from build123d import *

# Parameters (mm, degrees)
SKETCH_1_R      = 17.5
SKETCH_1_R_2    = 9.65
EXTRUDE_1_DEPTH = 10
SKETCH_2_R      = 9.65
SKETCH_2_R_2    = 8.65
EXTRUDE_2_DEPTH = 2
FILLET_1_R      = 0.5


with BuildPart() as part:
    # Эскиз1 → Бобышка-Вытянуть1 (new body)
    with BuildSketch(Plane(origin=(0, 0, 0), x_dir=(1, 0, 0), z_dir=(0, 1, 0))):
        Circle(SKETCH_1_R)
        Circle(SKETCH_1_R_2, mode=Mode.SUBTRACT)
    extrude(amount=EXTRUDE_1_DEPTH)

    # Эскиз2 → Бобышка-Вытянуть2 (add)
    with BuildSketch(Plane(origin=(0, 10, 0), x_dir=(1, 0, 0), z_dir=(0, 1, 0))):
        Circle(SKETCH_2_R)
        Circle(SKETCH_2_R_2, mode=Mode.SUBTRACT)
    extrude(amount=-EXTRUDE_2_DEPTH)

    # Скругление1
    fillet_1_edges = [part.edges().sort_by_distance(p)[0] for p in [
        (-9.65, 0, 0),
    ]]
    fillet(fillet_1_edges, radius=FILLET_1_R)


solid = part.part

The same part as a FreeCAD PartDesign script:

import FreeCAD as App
import Part
import Sketcher
Q = App.Units.Quantity


def edges_at(feature, points):
    """Names of the edges that pass closest to the given points."""
    edges = feature.Shape.Edges
    near = lambda p: min(range(len(edges)), key=lambda i: edges[i].distToShape(Part.Vertex(*p))[0])
    return sorted({f"Edge{near(p) + 1}" for p in points})

doc = App.newDocument("Part")
body = doc.addObject("PartDesign::Body", "Body")

sketch1 = body.newObject("Sketcher::SketchObject", "Sketch")
sketch1.AttachmentSupport = (doc.getObject("XZ_Plane"), [""])
sketch1.MapMode = "FlatFace"
sketch1.addGeometry([
    Part.Circle(App.Vector(0, 0, 0), App.Vector(0, 0, 1), 18),
    Part.Circle(App.Vector(0, 0, 0), App.Vector(0, 0, 1), 10),
], False)
sketch1.addConstraint([
    Sketcher.Constraint("Coincident", 0, 3, -1, 1),
    Sketcher.Constraint("Coincident", 1, 3, -1, 1),
    Sketcher.Constraint("Diameter", 0, Q("35 mm")),
    Sketcher.Constraint("Diameter", 1, Q("19.3 mm")),
])
pad1 = body.newObject("PartDesign::Pad", "Pad")
pad1.Profile = sketch1
pad1.Length = 10
pad1.Reversed = True

sketch2 = body.newObject("Sketcher::SketchObject", "Sketch001")
sketch2.AttachmentSupport = (doc.getObject("XZ_Plane"), [""])
sketch2.MapMode = "FlatFace"
sketch2.AttachmentOffset = App.Placement(App.Vector(0, 0, -10), App.Rotation())
sketch2.addGeometry([
    Part.Circle(App.Vector(0, 0, 0), App.Vector(0, 0, 1), 10),
    Part.Circle(App.Vector(0, 0, 0), App.Vector(0, 0, 1), 9),
], False)
sketch2.addConstraint([
    Sketcher.Constraint("Coincident", 0, 3, -1, 1),
    Sketcher.Constraint("Coincident", 1, 3, -1, 1),
    Sketcher.Constraint("Diameter", 0, Q("19.3 mm")),
    Sketcher.Constraint("Diameter", 1, Q("17.3 mm")),
])
pad2 = body.newObject("PartDesign::Pad", "Pad001")
pad2.Profile = sketch2
pad2.Length = 2
doc.recompute()

fillet = body.newObject("PartDesign::Fillet", "Fillet")
fillet.Base = (pad2, edges_at(pad2, [(-9.65, 0, 0)]))
fillet.Radius = 0.5

doc.recompute()
